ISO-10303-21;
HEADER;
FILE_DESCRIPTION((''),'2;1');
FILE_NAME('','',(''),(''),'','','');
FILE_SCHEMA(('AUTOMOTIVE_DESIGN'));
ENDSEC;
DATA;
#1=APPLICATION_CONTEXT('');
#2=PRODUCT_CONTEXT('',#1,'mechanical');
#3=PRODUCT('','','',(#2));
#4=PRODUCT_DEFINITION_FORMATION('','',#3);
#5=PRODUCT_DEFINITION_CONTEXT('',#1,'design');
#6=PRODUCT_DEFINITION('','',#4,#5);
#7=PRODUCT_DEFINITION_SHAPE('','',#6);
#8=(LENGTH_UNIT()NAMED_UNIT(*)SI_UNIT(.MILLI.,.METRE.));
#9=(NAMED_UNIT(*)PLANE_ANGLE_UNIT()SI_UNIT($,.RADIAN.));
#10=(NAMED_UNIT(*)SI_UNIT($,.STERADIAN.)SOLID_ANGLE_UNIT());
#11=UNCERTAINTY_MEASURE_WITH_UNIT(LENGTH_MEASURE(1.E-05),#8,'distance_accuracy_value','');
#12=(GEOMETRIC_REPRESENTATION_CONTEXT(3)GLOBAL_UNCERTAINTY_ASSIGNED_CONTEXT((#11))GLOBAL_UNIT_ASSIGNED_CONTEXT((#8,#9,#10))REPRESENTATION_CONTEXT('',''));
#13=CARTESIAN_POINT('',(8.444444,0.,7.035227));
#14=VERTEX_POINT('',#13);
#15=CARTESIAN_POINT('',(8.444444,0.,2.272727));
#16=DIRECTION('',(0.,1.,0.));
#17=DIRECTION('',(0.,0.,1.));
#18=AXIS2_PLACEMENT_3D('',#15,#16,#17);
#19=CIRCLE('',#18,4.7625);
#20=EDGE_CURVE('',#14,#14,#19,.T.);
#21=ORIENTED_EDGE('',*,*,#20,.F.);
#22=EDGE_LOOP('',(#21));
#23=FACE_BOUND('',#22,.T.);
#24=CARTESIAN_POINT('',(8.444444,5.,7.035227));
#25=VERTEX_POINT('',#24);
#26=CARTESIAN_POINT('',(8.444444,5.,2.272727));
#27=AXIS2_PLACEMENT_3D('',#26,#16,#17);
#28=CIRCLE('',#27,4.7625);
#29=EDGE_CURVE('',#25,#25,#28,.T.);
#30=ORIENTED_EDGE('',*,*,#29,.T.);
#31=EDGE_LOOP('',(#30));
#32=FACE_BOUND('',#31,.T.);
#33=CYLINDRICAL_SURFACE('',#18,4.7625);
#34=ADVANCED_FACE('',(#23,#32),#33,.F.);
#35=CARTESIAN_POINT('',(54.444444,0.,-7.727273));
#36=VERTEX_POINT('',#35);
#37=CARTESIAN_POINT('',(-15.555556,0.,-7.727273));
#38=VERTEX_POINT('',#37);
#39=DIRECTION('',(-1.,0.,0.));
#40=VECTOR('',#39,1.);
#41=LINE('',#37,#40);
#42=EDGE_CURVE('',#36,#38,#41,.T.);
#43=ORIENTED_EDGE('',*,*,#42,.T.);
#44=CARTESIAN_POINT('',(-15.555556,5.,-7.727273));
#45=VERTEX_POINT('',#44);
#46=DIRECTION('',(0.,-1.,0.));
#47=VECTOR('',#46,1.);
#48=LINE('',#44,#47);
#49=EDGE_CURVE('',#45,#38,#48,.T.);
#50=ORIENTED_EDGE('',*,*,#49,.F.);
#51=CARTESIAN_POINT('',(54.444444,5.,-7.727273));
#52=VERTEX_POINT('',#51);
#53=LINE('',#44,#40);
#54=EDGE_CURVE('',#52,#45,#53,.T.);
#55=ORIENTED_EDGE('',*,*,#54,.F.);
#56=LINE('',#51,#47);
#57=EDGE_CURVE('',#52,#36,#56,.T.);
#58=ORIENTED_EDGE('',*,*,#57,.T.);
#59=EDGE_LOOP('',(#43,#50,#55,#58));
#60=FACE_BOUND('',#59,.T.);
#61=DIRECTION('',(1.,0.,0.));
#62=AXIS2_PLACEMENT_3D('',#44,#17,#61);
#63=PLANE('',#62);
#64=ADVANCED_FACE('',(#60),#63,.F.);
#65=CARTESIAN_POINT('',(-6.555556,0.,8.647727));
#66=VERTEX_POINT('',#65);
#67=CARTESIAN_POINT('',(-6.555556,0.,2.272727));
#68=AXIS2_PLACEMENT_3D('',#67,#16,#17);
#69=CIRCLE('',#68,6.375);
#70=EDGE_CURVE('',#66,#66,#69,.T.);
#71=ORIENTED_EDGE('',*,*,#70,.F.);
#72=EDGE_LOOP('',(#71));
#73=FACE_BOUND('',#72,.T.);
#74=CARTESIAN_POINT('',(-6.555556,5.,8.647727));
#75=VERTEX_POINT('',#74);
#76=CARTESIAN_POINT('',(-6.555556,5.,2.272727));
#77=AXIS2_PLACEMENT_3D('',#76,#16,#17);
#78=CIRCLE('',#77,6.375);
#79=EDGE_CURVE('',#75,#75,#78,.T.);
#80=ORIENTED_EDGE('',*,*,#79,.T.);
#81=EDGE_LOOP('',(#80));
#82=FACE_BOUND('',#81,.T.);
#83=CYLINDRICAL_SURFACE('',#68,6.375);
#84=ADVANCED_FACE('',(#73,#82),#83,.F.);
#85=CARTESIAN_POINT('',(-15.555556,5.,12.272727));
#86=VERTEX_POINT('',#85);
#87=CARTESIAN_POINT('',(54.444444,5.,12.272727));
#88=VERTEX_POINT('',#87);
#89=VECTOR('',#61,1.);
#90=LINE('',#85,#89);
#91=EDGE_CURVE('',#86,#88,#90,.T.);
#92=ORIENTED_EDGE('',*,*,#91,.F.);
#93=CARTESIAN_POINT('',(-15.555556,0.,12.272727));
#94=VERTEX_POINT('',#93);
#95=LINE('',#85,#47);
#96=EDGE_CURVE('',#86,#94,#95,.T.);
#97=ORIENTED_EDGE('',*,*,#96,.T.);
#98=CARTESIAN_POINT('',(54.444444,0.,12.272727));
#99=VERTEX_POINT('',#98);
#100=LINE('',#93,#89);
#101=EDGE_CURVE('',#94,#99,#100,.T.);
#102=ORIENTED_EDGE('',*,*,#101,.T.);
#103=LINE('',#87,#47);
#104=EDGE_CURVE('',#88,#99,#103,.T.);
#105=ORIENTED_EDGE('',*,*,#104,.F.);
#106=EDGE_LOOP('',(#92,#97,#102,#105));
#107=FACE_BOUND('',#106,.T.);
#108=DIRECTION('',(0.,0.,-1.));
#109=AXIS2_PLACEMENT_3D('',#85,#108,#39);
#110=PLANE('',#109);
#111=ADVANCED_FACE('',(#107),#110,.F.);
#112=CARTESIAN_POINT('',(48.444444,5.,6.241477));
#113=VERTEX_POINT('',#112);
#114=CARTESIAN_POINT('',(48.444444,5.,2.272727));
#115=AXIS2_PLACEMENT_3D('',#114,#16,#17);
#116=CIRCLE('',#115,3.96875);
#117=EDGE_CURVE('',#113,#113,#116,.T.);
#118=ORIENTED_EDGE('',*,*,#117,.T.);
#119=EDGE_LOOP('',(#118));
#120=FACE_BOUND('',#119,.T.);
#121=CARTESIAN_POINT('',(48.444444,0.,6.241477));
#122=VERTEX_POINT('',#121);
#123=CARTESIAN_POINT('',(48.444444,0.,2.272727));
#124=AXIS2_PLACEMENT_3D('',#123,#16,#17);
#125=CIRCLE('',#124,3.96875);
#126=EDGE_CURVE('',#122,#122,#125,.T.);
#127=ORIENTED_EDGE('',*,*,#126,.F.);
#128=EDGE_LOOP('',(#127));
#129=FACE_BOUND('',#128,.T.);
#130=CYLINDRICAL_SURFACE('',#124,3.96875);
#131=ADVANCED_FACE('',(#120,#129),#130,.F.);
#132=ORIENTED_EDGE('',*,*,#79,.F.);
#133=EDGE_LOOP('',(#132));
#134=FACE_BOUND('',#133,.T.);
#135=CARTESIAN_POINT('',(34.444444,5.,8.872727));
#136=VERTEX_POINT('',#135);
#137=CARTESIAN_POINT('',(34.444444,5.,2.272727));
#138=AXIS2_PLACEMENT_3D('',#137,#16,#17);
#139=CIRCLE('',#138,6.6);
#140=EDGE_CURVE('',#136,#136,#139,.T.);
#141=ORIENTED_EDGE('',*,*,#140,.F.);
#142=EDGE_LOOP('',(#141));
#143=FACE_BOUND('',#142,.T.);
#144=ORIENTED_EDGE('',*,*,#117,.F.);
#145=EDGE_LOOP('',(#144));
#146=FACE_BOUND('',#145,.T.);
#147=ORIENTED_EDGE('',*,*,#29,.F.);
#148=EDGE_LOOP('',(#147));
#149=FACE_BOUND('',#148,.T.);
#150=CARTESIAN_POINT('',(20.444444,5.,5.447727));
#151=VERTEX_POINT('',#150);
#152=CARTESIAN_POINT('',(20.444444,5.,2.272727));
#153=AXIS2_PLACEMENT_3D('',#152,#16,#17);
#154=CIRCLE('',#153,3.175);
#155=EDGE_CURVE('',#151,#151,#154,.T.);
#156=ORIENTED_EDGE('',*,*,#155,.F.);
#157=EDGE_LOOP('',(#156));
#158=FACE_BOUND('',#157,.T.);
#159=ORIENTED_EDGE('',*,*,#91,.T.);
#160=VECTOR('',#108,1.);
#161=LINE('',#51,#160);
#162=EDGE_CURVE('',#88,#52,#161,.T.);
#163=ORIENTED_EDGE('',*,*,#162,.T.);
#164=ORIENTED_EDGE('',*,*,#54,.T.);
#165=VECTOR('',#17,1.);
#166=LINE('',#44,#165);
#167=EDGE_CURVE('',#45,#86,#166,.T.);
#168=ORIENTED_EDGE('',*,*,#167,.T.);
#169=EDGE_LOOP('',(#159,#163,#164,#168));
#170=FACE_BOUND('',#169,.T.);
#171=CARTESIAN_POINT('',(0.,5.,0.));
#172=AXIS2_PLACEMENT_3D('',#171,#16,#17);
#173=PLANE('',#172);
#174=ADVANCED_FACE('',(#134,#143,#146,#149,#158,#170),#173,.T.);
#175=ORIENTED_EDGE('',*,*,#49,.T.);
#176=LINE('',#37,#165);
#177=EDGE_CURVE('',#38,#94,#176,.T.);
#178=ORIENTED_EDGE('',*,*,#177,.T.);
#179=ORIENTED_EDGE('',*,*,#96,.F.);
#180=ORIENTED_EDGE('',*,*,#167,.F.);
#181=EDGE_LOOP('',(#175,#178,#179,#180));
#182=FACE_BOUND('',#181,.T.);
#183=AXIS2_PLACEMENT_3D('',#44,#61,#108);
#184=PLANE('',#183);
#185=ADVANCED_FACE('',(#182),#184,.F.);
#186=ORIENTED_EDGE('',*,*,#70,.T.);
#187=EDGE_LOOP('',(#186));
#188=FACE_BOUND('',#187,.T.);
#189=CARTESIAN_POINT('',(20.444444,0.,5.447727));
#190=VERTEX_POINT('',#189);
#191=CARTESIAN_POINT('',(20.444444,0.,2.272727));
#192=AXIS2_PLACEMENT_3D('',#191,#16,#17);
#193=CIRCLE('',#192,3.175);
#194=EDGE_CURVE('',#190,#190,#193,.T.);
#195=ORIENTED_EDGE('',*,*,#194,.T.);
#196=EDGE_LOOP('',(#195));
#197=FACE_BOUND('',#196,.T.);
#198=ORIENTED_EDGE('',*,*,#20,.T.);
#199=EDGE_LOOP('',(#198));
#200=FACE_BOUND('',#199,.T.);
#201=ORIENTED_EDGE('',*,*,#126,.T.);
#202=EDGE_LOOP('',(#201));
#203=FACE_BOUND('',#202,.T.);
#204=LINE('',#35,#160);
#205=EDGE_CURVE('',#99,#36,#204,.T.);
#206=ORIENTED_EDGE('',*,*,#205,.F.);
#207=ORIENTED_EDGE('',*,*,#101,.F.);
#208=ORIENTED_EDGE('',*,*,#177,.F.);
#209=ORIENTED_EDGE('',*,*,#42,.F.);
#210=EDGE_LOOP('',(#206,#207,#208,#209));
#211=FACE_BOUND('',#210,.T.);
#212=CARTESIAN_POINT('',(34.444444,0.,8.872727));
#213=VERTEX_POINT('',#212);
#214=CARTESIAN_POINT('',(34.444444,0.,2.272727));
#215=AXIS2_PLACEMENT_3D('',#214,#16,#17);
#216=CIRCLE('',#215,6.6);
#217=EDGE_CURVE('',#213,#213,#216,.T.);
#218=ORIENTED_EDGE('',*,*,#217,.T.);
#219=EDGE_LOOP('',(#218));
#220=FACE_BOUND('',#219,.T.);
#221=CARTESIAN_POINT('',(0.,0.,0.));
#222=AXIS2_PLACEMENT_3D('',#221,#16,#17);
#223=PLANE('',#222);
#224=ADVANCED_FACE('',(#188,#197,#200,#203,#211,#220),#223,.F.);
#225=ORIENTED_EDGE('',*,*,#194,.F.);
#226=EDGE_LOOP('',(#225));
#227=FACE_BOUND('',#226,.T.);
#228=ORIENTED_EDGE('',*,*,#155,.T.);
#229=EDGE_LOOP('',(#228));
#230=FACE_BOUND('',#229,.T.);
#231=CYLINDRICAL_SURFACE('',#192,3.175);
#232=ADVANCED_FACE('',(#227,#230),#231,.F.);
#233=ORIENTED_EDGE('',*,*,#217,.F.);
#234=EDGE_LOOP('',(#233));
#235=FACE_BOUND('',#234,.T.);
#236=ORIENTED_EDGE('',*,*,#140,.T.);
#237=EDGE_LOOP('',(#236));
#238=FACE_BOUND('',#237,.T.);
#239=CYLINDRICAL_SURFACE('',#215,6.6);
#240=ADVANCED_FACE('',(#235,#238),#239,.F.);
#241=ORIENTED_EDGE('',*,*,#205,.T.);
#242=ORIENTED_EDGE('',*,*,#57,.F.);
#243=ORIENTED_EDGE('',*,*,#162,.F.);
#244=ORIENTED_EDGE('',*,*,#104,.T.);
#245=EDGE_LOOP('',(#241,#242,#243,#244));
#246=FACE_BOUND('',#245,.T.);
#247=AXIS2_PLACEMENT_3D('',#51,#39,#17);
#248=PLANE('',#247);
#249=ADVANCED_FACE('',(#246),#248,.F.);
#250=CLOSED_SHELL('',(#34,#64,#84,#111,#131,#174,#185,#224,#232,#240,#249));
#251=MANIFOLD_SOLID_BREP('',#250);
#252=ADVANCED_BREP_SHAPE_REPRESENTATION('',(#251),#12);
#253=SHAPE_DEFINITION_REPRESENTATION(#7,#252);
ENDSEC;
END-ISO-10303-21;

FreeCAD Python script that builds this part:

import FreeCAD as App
import Part
import Sketcher


def add_polygon(sketch, points):
    """Adds a closed chain of lines whose ends are joined by coincident constraints."""
    first, n = sketch.GeometryCount, len(points)
    for a, b in zip(points, points[1:] + points[:1]):
        sketch.addGeometry(Part.LineSegment(App.Vector(*a, 0), App.Vector(*b, 0)), False)
    for i in range(n):
        sketch.addConstraint(Sketcher.Constraint("Coincident", first + i, 2, first + (i + 1) % n, 1))

doc = App.newDocument("Part")
params = doc.addObject("Spreadsheet::Sheet", "Params")
for row, (alias, value) in enumerate([
    ("sketch1_width", "70 mm"),
    ("sketch1_height", "20 mm"),
    ("pad1_length", "5 mm"),
    ("sketch2_diameter", "13.2 mm"),
    ("sketch2_diameter2", "12.75 mm"),
    ("sketch2_diameter3", "6.35 mm"),
], start=1):
    params.set(f"A{row}", alias)
    params.set(f"B{row}", "=" + value)
    params.setAlias(f"B{row}", alias)

body = doc.addObject("PartDesign::Body", "Body")

# Sketch on XZ plane
sketch1 = doc.addObject("Sketcher::SketchObject", "Sketch")
body.addObject(sketch1)
sketch1.AttachmentSupport = (doc.XZ_Plane, [""])
sketch1.MapMode = "FlatFace"
add_polygon(sketch1, [(-15.555556, -7.727273), (-15.555556, 12.272727), (54.444444, 12.272727), (54.444444, -7.727273)])  # lines 0-3
sketch1.addConstraint(Sketcher.Constraint("Vertical", 0))
sketch1.addConstraint(Sketcher.Constraint("Horizontal", 1))
sketch1.addConstraint(Sketcher.Constraint("Vertical", 2))
sketch1.addConstraint(Sketcher.Constraint("Horizontal", 3))
sketch1.addConstraint(Sketcher.Constraint("DistanceX", 1, 1, 1, 2, 70.0))
sketch1.addConstraint(Sketcher.Constraint("DistanceY", 0, 1, 0, 2, 20.0))
sketch1.addConstraint(Sketcher.Constraint("DistanceX", 0, 2, -1, 1, 15.555556))
sketch1.addConstraint(Sketcher.Constraint("DistanceY", -1, 1, 0, 2, 12.272727))
sketch1.setExpression("Constraints[8]", "Params.sketch1_width")
sketch1.setExpression("Constraints[9]", "Params.sketch1_height")
pad1 = doc.addObject("PartDesign::Pad", "Pad")
body.addObject(pad1)
pad1.Profile = sketch1
pad1.setExpression("Length", "Params.pad1_length")
pad1.Reversed = True

# Sketch on XZ plane
sketch2 = doc.addObject("Sketcher::SketchObject", "Sketch001")
body.addObject(sketch2)
sketch2.AttachmentSupport = (doc.XZ_Plane, [""])
sketch2.MapMode = "FlatFace"
sketch2.AttachmentOffset = App.Placement(App.Vector(0, 0, -5), App.Rotation())
sketch2.addGeometry(Part.Circle(App.Vector(-6.555556, 2.272727, 0), App.Vector(0, 0, 1), 6.375), False)
sketch2.addGeometry(Part.Circle(App.Vector(8.444444, 2.272727, 0), App.Vector(0, 0, 1), 4.7625), False)
sketch2.addGeometry(Part.Circle(App.Vector(20.444444, 2.272727, 0), App.Vector(0, 0, 1), 3.175), False)
sketch2.addGeometry(Part.Circle(App.Vector(34.444444, 2.272727, 0), App.Vector(0, 0, 1), 6.6), False)
sketch2.addGeometry(Part.Circle(App.Vector(48.444444, 2.272727, 0), App.Vector(0, 0, 1), 3.96875), False)
sketch2.addConstraint(Sketcher.Constraint("Horizontal", 0, 3, 1, 3))
sketch2.addConstraint(Sketcher.Constraint("Horizontal", 1, 3, 2, 3))
sketch2.addConstraint(Sketcher.Constraint("Horizontal", 2, 3, 3, 3))
sketch2.addConstraint(Sketcher.Constraint("Horizontal", 3, 3, 4, 3))
sketch2.addConstraint(Sketcher.Constraint("Diameter", 3, 13.2))
sketch2.addConstraint(Sketcher.Constraint("Diameter", 0, 12.75))
sketch2.addConstraint(Sketcher.Constraint("Diameter", 2, 6.35))
sketch2.addConstraint(Sketcher.Constraint("Diameter", 1, 9.525))
sketch2.addConstraint(Sketcher.Constraint("DistanceX", 0, 3, 1, 3, 15.0))
sketch2.addConstraint(Sketcher.Constraint("DistanceX", 1, 3, 2, 3, 12.0))
sketch2.addConstraint(Sketcher.Constraint("DistanceX", 2, 3, 3, 3, 14.0))
sketch2.addConstraint(Sketcher.Constraint("DistanceX", 3, 3, 4, 3, 14.0))
sketch2.addConstraint(Sketcher.Constraint("Diameter", 4, 7.9375))
sketch2.addConstraint(Sketcher.Constraint("DistanceX", 0, 3, -1, 1, 6.555556))
sketch2.addConstraint(Sketcher.Constraint("DistanceY", -1, 1, 0, 3, 2.272727))
sketch2.setExpression("Constraints[4]", "Params.sketch2_diameter")
sketch2.setExpression("Constraints[5]", "Params.sketch2_diameter2")
sketch2.setExpression("Constraints[6]", "Params.sketch2_diameter3")
pocket1 = doc.addObject("PartDesign::Pocket", "Pocket")
body.addObject(pocket1)
pocket1.Profile = sketch2
pocket1.Type = "ThroughAll"
pocket1.Reversed = True

doc.recompute()
